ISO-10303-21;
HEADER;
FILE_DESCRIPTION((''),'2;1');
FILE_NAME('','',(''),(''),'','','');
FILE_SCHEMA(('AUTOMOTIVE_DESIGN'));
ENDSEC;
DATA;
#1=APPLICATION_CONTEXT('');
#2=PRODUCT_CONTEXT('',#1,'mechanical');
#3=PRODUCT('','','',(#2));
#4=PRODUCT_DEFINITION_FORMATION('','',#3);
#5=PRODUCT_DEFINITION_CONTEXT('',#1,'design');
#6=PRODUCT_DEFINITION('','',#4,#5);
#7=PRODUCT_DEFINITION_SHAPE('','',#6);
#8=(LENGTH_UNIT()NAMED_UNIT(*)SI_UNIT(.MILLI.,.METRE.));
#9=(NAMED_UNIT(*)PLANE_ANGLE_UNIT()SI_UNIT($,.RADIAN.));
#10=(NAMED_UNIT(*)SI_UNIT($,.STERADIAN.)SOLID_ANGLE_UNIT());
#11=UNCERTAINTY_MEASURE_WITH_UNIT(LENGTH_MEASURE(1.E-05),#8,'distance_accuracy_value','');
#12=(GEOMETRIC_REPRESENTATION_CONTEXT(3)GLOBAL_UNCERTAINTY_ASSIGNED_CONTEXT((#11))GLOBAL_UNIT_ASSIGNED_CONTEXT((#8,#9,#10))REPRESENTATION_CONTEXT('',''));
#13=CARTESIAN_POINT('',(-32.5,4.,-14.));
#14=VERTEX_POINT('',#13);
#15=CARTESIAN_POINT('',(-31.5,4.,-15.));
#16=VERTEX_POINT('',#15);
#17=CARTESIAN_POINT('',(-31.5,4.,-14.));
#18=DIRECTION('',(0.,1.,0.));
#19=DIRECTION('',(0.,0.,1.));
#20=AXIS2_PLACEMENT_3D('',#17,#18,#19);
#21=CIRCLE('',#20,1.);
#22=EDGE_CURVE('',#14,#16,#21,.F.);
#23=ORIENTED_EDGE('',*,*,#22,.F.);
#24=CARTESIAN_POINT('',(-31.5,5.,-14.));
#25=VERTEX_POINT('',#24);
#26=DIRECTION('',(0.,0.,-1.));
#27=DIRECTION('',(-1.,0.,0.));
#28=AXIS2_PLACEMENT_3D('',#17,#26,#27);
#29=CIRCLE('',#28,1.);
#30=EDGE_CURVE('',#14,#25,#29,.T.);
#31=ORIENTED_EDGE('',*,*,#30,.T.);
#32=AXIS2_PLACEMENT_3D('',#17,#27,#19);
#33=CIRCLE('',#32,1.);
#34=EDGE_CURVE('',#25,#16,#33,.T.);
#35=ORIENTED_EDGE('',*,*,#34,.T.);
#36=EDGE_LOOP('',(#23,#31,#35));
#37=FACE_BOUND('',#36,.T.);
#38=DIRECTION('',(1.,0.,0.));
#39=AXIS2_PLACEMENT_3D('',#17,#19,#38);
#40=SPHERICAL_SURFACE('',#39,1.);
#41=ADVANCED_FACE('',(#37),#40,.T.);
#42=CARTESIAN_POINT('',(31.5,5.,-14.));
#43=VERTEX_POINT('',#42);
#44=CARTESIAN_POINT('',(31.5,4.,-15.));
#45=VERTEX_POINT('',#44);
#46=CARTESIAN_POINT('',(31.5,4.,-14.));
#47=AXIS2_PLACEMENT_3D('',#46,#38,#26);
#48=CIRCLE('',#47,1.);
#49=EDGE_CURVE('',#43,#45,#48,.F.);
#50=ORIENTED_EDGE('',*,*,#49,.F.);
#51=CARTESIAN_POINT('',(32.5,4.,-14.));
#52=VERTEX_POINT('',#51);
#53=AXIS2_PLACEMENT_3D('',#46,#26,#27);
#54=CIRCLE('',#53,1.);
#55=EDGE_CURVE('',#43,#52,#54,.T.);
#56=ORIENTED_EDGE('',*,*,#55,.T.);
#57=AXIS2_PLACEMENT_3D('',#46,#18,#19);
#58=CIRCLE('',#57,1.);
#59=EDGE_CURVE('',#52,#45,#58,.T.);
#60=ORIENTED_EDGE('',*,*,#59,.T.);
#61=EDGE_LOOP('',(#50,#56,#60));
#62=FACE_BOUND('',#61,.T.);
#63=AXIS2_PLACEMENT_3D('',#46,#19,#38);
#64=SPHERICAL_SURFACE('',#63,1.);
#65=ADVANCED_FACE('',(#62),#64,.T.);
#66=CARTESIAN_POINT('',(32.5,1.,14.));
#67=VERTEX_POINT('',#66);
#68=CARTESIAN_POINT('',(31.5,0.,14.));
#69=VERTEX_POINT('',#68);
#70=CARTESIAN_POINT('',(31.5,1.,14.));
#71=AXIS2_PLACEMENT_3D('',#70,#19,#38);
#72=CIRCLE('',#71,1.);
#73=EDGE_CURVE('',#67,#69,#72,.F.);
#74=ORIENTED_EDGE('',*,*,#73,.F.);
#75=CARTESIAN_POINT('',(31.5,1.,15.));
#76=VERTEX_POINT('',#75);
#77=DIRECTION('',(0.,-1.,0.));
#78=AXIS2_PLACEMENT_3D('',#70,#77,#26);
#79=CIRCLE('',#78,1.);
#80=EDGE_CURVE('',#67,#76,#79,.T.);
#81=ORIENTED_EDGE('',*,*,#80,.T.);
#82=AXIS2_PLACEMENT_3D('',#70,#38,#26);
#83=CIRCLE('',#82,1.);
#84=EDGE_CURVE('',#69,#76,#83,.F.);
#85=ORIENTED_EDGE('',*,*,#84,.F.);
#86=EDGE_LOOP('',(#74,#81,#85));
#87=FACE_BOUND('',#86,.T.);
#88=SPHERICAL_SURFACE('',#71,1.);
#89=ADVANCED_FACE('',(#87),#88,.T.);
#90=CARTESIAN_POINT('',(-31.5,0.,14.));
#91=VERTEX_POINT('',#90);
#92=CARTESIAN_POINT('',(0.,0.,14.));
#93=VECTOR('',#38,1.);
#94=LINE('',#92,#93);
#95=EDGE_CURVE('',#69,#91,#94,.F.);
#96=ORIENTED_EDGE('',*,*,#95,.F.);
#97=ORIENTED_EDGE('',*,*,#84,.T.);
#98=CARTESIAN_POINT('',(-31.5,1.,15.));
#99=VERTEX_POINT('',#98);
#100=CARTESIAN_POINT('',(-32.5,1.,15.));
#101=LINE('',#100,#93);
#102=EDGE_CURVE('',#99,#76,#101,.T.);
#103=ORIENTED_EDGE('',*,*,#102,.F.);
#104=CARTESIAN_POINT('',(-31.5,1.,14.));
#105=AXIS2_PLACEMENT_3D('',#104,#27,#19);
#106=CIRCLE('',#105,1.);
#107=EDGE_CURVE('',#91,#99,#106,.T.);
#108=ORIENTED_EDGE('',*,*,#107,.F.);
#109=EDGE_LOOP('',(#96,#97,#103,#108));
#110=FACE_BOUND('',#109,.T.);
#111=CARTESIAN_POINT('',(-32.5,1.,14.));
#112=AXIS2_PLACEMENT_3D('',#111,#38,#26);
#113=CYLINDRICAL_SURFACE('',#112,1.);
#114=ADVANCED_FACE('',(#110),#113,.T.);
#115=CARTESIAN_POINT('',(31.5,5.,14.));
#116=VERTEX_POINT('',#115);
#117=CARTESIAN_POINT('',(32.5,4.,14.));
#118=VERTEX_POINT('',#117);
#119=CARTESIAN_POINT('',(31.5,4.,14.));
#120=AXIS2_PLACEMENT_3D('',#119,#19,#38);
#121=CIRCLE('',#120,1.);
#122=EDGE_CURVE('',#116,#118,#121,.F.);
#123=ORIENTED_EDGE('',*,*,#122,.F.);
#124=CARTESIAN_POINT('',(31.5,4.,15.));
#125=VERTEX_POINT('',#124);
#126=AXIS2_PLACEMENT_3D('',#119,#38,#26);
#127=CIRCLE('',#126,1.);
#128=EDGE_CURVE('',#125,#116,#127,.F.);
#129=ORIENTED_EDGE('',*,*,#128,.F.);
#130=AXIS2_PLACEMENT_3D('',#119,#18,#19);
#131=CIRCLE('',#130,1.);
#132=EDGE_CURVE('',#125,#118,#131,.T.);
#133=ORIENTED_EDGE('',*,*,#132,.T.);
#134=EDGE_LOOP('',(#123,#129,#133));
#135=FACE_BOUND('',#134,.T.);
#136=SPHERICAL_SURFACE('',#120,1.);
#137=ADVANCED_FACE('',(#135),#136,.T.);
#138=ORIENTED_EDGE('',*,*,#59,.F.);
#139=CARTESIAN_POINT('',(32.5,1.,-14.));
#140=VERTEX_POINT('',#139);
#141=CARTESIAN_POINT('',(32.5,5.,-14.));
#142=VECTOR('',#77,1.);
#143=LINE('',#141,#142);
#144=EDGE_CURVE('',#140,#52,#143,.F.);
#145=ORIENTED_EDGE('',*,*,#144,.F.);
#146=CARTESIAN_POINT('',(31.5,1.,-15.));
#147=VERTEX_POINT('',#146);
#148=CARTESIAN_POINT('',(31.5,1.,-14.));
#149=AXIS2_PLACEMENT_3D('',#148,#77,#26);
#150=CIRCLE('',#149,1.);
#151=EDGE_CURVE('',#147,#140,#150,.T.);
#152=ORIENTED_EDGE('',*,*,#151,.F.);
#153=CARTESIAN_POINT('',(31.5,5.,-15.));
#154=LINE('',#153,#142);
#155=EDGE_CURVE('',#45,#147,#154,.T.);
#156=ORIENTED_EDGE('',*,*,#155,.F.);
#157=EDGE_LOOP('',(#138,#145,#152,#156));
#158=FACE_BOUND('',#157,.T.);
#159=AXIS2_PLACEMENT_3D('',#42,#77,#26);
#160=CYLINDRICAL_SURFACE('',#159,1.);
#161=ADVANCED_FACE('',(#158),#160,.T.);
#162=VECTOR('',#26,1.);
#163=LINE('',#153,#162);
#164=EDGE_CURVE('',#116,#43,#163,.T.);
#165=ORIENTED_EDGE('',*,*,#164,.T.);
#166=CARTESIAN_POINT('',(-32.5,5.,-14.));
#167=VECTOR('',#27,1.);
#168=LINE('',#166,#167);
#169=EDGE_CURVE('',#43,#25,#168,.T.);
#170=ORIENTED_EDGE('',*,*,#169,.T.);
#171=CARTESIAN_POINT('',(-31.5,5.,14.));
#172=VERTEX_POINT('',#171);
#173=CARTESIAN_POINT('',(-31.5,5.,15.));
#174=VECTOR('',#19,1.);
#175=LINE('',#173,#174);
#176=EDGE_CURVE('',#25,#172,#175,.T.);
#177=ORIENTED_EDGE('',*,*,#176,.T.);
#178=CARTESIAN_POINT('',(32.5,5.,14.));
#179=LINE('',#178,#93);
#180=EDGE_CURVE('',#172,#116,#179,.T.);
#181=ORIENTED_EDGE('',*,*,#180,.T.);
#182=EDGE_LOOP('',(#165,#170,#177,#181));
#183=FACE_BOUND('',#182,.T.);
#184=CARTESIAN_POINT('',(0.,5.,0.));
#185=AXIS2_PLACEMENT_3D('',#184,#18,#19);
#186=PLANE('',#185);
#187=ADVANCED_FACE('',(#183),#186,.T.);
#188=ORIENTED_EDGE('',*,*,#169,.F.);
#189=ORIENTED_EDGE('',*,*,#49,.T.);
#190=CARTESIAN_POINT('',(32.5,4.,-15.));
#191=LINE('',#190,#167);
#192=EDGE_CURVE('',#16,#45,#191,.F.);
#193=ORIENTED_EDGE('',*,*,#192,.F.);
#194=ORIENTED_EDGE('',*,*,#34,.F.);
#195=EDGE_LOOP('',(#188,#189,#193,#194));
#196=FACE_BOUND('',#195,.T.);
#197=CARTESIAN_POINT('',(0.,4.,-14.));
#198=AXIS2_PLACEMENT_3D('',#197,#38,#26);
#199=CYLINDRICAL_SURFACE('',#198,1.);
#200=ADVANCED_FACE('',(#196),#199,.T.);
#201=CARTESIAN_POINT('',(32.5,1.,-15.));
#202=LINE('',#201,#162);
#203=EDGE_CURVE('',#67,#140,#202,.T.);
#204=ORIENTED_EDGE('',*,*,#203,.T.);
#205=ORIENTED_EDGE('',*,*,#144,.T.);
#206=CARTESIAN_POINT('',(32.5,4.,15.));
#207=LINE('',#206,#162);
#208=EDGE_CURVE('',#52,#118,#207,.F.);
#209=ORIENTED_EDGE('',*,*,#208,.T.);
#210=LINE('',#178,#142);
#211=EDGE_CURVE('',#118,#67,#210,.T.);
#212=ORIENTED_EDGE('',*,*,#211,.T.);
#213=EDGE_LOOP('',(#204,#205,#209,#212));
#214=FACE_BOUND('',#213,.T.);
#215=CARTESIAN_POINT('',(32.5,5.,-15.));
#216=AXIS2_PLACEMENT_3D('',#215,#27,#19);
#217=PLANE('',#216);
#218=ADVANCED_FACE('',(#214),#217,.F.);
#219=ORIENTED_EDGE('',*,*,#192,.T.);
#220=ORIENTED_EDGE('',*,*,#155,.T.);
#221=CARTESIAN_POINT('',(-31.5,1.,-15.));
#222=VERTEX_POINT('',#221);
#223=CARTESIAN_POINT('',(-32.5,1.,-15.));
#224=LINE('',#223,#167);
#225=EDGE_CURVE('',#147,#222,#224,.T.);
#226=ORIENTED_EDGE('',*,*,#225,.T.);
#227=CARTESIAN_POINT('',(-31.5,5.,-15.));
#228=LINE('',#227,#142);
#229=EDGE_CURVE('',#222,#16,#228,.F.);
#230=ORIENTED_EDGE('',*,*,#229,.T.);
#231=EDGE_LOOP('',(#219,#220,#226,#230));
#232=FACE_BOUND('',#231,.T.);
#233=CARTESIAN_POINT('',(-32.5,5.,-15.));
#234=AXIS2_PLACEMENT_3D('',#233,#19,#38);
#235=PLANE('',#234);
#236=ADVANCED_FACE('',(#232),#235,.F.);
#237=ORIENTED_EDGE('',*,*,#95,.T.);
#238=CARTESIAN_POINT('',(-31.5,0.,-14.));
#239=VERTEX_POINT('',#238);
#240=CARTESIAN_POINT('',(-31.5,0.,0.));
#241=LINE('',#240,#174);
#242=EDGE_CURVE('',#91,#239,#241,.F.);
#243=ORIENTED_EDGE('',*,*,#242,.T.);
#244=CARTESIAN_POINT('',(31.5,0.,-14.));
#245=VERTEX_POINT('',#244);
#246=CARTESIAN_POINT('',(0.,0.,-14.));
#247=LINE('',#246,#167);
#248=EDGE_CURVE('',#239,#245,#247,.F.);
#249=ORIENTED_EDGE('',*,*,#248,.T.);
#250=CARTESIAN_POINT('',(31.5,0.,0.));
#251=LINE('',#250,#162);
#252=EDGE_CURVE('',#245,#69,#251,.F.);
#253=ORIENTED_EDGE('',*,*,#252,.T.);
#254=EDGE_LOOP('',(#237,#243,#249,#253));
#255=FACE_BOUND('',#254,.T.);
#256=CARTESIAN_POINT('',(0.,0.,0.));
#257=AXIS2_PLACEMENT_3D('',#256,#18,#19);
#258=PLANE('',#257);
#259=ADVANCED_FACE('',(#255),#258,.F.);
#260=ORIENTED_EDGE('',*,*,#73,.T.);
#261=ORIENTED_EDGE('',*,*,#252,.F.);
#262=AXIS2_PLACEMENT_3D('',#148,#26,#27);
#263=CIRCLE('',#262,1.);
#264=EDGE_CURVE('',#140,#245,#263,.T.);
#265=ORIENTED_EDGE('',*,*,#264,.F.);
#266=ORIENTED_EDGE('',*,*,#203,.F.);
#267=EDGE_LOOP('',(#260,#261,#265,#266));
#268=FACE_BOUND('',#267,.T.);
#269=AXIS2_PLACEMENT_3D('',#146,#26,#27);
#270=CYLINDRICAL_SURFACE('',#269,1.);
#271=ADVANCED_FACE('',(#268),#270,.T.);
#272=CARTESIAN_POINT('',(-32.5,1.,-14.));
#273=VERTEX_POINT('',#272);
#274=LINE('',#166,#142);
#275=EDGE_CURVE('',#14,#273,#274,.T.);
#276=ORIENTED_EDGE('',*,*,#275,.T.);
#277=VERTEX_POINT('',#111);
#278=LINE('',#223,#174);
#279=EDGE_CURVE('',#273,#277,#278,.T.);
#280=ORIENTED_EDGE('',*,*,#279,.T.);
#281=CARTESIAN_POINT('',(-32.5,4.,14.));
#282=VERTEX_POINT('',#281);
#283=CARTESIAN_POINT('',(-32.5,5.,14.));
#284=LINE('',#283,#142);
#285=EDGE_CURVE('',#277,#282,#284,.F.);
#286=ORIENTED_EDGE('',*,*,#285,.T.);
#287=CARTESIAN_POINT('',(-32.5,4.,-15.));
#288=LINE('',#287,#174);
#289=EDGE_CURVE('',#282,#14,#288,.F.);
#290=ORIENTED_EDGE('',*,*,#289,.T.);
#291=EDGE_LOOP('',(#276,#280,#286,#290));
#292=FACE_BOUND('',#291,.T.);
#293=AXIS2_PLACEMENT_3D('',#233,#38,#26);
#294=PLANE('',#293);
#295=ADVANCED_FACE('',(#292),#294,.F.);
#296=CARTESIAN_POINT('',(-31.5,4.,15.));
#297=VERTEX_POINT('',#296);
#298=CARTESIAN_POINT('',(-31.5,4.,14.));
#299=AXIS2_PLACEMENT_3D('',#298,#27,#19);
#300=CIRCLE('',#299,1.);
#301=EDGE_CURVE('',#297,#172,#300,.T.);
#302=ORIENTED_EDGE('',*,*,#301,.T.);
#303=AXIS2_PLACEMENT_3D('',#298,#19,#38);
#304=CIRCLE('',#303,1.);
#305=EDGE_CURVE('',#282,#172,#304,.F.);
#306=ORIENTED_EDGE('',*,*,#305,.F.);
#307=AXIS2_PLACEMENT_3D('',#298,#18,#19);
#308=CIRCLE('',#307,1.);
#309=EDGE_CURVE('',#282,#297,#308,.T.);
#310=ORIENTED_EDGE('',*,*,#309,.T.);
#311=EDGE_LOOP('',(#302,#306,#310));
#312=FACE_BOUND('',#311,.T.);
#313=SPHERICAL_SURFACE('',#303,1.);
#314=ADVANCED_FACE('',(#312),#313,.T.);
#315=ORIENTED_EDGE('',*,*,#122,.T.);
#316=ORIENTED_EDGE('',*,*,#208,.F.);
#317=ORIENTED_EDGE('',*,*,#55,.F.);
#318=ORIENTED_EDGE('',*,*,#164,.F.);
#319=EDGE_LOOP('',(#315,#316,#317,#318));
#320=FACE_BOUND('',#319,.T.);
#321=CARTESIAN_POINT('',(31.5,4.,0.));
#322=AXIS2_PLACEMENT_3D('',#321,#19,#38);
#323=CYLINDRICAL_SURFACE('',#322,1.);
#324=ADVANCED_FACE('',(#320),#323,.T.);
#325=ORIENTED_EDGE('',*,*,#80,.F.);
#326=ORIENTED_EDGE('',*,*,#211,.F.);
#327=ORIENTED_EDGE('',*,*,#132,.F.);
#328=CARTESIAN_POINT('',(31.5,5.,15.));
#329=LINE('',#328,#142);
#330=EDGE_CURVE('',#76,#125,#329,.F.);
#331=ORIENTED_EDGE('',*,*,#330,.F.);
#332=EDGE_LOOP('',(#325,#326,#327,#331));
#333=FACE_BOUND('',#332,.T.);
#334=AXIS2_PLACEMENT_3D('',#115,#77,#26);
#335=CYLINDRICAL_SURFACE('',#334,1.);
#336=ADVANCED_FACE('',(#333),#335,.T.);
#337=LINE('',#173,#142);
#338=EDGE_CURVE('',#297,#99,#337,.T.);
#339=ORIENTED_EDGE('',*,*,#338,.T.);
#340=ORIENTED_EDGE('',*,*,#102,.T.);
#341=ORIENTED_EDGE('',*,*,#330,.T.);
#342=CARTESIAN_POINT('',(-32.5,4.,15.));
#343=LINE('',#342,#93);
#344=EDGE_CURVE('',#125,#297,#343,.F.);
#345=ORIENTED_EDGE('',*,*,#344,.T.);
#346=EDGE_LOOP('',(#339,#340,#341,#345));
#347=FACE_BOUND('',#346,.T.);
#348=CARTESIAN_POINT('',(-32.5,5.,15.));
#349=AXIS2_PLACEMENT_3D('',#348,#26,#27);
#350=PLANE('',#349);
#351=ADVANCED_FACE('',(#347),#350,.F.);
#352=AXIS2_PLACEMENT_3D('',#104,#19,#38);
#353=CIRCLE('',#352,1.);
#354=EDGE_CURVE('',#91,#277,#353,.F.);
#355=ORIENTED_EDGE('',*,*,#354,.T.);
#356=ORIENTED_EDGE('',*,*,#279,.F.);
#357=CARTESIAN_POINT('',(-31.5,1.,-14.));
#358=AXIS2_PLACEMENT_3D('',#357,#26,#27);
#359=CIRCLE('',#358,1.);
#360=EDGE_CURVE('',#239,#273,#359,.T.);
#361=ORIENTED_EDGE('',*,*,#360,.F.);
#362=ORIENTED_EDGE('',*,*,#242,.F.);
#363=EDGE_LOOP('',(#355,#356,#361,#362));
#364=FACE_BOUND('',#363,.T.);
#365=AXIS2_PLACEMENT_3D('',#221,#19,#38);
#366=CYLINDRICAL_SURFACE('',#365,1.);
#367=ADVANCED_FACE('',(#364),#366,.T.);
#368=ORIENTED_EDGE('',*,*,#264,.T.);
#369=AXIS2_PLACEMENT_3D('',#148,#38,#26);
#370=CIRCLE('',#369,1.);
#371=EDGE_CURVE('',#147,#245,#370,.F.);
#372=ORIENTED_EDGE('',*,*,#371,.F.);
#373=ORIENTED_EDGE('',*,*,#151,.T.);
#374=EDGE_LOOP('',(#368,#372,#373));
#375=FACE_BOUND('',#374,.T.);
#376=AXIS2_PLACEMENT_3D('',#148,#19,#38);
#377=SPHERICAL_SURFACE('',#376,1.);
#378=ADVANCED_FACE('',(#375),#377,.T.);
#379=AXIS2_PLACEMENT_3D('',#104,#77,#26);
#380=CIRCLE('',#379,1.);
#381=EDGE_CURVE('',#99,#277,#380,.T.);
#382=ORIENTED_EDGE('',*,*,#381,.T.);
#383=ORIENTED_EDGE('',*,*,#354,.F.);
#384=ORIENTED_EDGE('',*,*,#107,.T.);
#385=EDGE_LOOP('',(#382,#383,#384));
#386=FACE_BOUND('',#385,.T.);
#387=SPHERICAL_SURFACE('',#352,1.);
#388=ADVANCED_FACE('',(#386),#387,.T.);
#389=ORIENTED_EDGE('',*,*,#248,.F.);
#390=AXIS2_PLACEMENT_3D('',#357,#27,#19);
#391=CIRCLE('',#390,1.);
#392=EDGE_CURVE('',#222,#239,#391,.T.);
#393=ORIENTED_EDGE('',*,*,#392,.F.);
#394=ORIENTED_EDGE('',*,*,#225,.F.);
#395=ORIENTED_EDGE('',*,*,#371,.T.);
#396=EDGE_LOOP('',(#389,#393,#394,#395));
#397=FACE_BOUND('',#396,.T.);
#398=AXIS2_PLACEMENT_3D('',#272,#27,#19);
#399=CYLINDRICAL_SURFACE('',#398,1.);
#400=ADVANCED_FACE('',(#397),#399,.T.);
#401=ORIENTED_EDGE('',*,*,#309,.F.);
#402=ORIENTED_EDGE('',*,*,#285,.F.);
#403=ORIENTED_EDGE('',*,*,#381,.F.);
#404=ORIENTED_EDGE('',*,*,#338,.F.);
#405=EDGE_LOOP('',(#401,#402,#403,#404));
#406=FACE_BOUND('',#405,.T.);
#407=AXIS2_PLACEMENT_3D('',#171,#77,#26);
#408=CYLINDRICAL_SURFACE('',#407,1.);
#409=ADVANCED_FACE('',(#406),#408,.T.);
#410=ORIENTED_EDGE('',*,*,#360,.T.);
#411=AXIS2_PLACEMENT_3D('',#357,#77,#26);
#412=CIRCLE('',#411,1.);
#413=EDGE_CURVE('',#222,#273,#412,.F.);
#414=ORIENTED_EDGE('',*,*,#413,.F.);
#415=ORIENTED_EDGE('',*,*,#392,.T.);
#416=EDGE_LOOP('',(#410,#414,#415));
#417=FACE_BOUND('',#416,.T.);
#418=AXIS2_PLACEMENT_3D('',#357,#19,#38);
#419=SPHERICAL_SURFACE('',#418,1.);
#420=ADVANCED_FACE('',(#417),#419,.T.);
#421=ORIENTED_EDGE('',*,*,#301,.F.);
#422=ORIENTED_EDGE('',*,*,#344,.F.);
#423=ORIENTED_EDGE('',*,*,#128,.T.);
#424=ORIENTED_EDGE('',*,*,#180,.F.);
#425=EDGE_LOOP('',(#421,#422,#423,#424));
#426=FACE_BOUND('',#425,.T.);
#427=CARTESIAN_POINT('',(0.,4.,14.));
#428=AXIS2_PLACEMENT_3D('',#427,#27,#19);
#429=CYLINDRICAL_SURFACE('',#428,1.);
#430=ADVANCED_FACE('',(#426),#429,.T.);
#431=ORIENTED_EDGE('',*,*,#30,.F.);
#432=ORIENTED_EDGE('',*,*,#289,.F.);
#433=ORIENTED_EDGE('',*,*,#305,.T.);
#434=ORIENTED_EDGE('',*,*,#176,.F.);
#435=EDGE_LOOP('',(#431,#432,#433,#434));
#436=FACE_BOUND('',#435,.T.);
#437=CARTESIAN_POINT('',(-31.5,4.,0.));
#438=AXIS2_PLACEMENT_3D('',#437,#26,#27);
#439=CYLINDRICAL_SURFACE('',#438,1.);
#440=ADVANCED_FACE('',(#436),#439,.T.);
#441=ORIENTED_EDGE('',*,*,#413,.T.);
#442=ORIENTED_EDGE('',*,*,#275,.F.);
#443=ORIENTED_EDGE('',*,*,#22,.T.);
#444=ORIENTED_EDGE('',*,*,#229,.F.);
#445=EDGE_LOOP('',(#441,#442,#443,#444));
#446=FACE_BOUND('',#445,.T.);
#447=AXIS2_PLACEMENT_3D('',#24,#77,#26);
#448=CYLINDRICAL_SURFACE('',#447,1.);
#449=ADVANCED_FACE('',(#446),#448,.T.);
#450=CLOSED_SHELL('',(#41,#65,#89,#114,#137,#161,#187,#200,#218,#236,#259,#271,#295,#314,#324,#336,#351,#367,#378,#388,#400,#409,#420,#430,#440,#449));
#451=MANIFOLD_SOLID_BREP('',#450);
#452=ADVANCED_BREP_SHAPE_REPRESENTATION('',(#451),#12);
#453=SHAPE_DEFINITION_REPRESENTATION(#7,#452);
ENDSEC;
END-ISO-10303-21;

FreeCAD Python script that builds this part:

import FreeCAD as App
import Part
import Sketcher
from FreeCAD import Vector
Q = App.Units.Quantity

doc = App.newDocument("Part")
body = doc.addObject("PartDesign::Body", "Body")

# Sketch on XZ plane
sketch1 = doc.addObject("Sketcher::SketchObject", "Sketch")
body.addObject(sketch1)
sketch1.AttachmentSupport = (doc.XZ_Plane, [""])
sketch1.MapMode = "FlatFace"
sketch1.addGeometry(Part.LineSegment(Vector(-32.5, -15, 0), Vector(-32.5, 15, 0)), False)
sketch1.addGeometry(Part.LineSegment(Vector(-32.5, 15, 0), Vector(32.5, 15, 0)), False)
sketch1.addGeometry(Part.LineSegment(Vector(32.5, 15, 0), Vector(32.5, -15, 0)), False)
sketch1.addGeometry(Part.LineSegment(Vector(32.5, -15, 0), Vector(-32.5, -15, 0)), False)
sketch1.addConstraint(Sketcher.Constraint("Coincident", 0, 2, 1, 1))
sketch1.addConstraint(Sketcher.Constraint("Coincident", 1, 2, 2, 1))
sketch1.addConstraint(Sketcher.Constraint("Coincident", 2, 2, 3, 1))
sketch1.addConstraint(Sketcher.Constraint("Coincident", 3, 2, 0, 1))
sketch1.addConstraint(Sketcher.Constraint("Vertical", 0))
sketch1.addConstraint(Sketcher.Constraint("Horizontal", 1))
sketch1.addConstraint(Sketcher.Constraint("Vertical", 2))
sketch1.addConstraint(Sketcher.Constraint("Horizontal", 3))
sketch1.addConstraint(Sketcher.Constraint("Symmetric", 0, 2, 2, 2, -1, 1))
sketch1.addConstraint(Sketcher.Constraint("DistanceX", 1, 1, 1, 2, Q("65 mm")))
sketch1.addConstraint(Sketcher.Constraint("DistanceY", 0, 1, 0, 2, Q("30 mm")))
pad1 = doc.addObject("PartDesign::Pad", "Pad")
body.addObject(pad1)
pad1.Profile = sketch1
pad1.Length = 5
pad1.Reversed = True
doc.recompute()

fillet = doc.addObject("PartDesign::Fillet", "Fillet")
body.addObject(fillet)
fillet.Base = (pad1, ["Edge1"])
fillet.UseAllEdges = True
fillet.Radius = 1

doc.recompute()
